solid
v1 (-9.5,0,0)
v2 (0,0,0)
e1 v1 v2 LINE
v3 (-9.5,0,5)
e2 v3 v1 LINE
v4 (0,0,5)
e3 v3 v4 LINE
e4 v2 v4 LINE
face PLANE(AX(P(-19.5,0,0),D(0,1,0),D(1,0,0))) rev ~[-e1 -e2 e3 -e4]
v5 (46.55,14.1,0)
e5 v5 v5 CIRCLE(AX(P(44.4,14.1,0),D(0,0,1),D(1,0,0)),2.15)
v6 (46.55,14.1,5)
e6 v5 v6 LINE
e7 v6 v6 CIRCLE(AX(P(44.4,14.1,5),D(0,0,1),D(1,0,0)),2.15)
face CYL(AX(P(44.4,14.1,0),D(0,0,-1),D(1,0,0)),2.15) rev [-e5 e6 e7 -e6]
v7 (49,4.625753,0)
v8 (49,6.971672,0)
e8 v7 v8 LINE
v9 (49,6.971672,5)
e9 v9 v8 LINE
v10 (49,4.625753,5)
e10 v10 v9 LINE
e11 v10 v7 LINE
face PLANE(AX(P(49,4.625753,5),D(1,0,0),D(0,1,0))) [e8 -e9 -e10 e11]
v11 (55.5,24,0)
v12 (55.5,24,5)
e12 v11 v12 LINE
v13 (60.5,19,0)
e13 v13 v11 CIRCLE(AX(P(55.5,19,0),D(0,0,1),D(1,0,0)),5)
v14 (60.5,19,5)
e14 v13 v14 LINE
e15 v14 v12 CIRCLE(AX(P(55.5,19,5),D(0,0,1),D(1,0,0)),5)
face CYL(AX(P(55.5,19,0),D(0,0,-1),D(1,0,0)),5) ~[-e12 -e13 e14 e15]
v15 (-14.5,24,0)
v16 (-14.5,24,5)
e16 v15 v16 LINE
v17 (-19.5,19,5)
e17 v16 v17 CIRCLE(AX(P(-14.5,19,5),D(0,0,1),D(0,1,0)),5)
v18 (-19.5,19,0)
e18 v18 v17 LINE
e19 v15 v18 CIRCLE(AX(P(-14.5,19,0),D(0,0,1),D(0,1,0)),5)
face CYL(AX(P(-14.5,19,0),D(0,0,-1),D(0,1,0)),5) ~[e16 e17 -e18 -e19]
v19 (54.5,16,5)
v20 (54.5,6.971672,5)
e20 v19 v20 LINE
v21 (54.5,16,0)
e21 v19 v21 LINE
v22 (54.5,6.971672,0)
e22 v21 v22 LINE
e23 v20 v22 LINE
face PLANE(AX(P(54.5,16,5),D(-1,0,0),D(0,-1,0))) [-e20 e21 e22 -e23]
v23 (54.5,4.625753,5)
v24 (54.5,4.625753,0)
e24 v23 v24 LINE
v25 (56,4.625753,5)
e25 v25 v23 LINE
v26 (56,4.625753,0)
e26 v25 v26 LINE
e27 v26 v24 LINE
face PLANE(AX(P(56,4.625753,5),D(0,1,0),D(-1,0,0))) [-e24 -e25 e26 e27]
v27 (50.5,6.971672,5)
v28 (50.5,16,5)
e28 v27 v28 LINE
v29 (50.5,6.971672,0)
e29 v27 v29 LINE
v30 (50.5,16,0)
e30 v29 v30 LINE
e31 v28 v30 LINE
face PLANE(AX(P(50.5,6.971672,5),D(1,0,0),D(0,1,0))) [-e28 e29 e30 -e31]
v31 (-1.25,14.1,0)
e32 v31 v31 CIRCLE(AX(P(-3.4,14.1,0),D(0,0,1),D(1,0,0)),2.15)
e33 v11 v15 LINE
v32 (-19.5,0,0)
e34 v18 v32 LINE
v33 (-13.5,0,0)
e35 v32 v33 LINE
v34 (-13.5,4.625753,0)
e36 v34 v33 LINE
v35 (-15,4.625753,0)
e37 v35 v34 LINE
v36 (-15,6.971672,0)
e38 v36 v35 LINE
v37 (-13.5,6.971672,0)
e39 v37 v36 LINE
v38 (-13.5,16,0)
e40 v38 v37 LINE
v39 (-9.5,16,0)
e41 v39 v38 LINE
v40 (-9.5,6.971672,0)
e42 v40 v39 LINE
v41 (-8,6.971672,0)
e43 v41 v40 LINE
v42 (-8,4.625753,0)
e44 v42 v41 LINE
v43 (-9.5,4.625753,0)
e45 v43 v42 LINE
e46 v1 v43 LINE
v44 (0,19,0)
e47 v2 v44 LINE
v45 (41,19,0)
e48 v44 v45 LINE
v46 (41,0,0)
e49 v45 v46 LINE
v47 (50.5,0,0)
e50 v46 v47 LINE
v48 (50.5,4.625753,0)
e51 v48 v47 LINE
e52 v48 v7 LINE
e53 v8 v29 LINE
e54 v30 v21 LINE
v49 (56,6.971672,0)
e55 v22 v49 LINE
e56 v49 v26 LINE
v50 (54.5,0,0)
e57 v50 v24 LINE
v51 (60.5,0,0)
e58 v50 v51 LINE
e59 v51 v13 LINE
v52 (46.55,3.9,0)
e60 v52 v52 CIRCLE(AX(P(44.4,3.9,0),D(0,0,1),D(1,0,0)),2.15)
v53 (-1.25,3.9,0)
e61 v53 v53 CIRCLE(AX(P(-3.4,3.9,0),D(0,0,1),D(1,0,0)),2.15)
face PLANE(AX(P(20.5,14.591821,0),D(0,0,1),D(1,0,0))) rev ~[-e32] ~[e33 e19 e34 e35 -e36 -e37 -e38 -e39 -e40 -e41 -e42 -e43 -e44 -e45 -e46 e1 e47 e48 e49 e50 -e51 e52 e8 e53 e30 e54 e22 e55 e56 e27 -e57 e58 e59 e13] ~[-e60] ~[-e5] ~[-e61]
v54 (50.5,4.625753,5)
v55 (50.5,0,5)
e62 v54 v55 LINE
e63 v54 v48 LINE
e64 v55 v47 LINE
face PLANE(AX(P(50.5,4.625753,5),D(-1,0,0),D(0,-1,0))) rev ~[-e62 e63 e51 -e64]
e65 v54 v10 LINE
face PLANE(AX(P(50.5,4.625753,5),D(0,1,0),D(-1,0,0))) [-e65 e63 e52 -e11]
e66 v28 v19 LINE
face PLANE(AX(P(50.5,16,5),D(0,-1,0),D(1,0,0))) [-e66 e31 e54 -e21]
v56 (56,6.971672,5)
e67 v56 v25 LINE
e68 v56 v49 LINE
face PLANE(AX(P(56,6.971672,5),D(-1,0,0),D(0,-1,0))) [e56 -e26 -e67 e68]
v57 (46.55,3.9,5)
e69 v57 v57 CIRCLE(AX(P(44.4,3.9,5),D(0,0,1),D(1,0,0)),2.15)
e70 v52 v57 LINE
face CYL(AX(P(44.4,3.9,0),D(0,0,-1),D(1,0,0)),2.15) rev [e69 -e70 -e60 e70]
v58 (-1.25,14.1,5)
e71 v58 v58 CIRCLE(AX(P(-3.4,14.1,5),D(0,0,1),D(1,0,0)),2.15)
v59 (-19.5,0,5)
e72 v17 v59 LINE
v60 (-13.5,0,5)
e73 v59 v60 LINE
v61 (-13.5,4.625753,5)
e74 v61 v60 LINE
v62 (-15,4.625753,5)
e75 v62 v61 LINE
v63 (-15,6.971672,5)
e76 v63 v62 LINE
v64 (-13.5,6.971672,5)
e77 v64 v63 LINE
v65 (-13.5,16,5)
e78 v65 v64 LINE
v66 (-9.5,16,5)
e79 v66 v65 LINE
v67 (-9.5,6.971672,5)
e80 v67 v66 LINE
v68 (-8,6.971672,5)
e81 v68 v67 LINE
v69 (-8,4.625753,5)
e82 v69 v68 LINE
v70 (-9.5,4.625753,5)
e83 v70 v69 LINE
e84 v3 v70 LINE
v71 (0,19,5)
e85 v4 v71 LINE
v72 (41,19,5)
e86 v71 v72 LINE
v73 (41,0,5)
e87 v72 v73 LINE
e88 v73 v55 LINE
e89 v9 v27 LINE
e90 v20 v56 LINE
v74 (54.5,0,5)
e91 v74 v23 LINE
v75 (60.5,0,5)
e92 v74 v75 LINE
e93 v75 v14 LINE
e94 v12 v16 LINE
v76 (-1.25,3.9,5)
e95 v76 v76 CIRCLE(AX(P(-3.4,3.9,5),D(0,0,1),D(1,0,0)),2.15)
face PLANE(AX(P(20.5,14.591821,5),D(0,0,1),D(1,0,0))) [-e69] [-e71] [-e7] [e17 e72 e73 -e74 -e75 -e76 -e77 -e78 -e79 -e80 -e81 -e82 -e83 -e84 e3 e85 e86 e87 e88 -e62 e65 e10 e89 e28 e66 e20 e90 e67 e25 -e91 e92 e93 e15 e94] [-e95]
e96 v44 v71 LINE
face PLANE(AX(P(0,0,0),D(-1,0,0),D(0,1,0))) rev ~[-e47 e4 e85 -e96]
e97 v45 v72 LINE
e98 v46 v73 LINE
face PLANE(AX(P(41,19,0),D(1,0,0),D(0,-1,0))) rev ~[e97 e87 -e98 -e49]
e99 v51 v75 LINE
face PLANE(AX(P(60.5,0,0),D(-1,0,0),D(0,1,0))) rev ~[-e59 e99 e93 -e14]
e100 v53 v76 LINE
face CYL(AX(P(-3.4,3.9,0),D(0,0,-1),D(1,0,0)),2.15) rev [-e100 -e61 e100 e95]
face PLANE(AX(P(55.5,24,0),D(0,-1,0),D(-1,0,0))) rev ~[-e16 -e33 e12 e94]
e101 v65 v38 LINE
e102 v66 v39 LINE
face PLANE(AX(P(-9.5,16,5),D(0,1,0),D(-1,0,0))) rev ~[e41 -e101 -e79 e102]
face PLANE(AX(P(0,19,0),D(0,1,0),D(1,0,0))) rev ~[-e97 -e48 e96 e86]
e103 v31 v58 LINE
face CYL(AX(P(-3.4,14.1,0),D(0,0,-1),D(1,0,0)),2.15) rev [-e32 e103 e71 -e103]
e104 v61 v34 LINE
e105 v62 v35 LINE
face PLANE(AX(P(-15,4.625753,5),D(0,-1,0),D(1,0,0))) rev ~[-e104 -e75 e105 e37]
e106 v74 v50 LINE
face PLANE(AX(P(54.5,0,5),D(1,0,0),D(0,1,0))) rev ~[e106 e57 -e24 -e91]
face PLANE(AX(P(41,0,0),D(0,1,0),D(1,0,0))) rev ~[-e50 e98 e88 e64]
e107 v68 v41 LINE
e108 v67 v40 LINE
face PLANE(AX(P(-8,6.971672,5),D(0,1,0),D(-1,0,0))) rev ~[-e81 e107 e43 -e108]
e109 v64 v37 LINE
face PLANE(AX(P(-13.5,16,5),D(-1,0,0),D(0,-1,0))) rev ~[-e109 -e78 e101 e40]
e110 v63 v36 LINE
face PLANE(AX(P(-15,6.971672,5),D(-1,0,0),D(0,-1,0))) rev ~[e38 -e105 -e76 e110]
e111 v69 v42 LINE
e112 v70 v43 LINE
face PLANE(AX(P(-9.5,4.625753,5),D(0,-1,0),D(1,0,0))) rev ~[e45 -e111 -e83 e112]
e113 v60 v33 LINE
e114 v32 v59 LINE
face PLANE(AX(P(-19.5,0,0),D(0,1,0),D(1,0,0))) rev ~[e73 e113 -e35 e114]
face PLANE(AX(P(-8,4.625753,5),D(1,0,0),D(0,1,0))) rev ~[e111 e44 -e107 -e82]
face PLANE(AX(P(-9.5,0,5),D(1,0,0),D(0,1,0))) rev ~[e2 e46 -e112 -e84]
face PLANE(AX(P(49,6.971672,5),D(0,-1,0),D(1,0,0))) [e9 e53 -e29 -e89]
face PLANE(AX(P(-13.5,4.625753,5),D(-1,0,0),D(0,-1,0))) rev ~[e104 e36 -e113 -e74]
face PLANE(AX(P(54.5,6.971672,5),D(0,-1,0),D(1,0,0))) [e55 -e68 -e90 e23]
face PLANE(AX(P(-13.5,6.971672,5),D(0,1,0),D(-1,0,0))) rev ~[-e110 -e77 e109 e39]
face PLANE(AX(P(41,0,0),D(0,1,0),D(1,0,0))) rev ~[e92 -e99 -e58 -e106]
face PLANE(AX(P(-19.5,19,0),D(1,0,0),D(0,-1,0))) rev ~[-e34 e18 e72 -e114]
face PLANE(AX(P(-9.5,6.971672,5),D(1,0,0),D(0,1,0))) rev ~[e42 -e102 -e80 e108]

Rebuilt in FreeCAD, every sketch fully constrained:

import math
import FreeCAD as App
import Part
import Sketcher
from FreeCAD import Vector


def add_polygon(sketch, points):
    """Adds a closed chain of lines whose ends are joined by coincident constraints."""
    first, n = sketch.GeometryCount, len(points)
    for a, b in zip(points, points[1:] + points[:1]):
        sketch.addGeometry(Part.LineSegment(App.Vector(*a, 0), App.Vector(*b, 0)), False)
    for i in range(n):
        sketch.addConstraint(Sketcher.Constraint("Coincident", first + i, 2, first + (i + 1) % n, 1))

doc = App.newDocument("Part")
params = doc.addObject("Spreadsheet::Sheet", "Params")
for row, (alias, value) in enumerate([
    ("sketch1_radius", "5 mm"),
    ("sketch1_diameter", "4.3 mm"),
    ("sketch1_width", "41 mm"),
    ("sketch1_width2", "70 mm"),
    ("sketch1_height", "19 mm"),
    ("pad1_length", "5 mm"),
    ("sketch2_width", "4 mm"),
    ("sketch2_width2", "1.5 mm"),
    ("pocket1_length", "30 mm"),
], start=1):
    params.set(f"A{row}", alias)
    params.set(f"B{row}", "=" + value)
    params.setAlias(f"B{row}", alias)

body = doc.addObject("PartDesign::Body", "Body")

sketch1 = body.newObject("Sketcher::SketchObject", "Sketch")
sketch1.AttachmentSupport = (doc.getObject("XY_Plane"), [""])
sketch1.MapMode = "FlatFace"
sketch1.addGeometry(Part.LineSegment(Vector(-19.5, 0, 0), Vector(0, 0, 0)), False)
sketch1.addGeometry(Part.LineSegment(Vector(0, 0, 0), Vector(0, 19, 0)), False)
sketch1.addGeometry(Part.LineSegment(Vector(0, 19, 0), Vector(41, 19, 0)), False)
sketch1.addGeometry(Part.LineSegment(Vector(41, 19, 0), Vector(41, 0, 0)), False)
sketch1.addGeometry(Part.LineSegment(Vector(41, 0, 0), Vector(60.5, 0, 0)), False)
sketch1.addGeometry(Part.LineSegment(Vector(60.5, 0, 0), Vector(60.5, 19, 0)), False)
sketch1.addGeometry(Part.ArcOfCircle(Part.Circle(Vector(55.5, 19, 0), Vector(0, 0, 1), 5), math.radians(0), math.radians(90)), False)
sketch1.addGeometry(Part.LineSegment(Vector(55.5, 24, 0), Vector(-14.5, 24, 0)), False)
sketch1.addGeometry(Part.ArcOfCircle(Part.Circle(Vector(-14.5, 19, 0), Vector(0, 0, 1), 5), math.radians(90), math.radians(180)), False)
sketch1.addGeometry(Part.LineSegment(Vector(-19.5, 19, 0), Vector(-19.5, 0, 0)), False)
sketch1.addGeometry(Part.Circle(Vector(-3.4, 3.9, 0), Vector(0, 0, 1), 2.1), False)
sketch1.addGeometry(Part.Circle(Vector(44.4, 3.9, 0), Vector(0, 0, 1), 2.1), False)
sketch1.addGeometry(Part.Circle(Vector(-3.4, 14.1, 0), Vector(0, 0, 1), 2.1), False)
sketch1.addGeometry(Part.Circle(Vector(44.4, 14.1, 0), Vector(0, 0, 1), 2.1), False)
sketch1.addConstraint(Sketcher.Constraint("Coincident", 0, 2, 1, 1))
sketch1.addConstraint(Sketcher.Constraint("Coincident", 1, 2, 2, 1))
sketch1.addConstraint(Sketcher.Constraint("Coincident", 2, 2, 3, 1))
sketch1.addConstraint(Sketcher.Constraint("Coincident", 3, 2, 4, 1))
sketch1.addConstraint(Sketcher.Constraint("Coincident", 4, 2, 5, 1))
sketch1.addConstraint(Sketcher.Constraint("Tangent", 5, 2, 6, 1))
sketch1.addConstraint(Sketcher.Constraint("Tangent", 6, 2, 7, 1))
sketch1.addConstraint(Sketcher.Constraint("Tangent", 7, 2, 8, 1))
sketch1.addConstraint(Sketcher.Constraint("Tangent", 8, 2, 9, 1))
sketch1.addConstraint(Sketcher.Constraint("Coincident", 9, 2, 0, 1))
sketch1.addConstraint(Sketcher.Constraint("Horizontal", 0))
sketch1.addConstraint(Sketcher.Constraint("Vertical", 1))
sketch1.addConstraint(Sketcher.Constraint("Horizontal", 2))
sketch1.addConstraint(Sketcher.Constraint("Vertical", 3))
sketch1.addConstraint(Sketcher.Constraint("Horizontal", 4))
sketch1.addConstraint(Sketcher.Constraint("Vertical", 5))
sketch1.addConstraint(Sketcher.Constraint("Horizontal", 7))
sketch1.addConstraint(Sketcher.Constraint("Vertical", 9))
sketch1.addConstraint(Sketcher.Constraint("Coincident", 0, 2, -1, 1))
sketch1.addConstraint(Sketcher.Constraint("Equal", 6, 8))
sketch1.addConstraint(Sketcher.Constraint("Equal", 10, 11))
sketch1.addConstraint(Sketcher.Constraint("Equal", 11, 12))
sketch1.addConstraint(Sketcher.Constraint("Equal", 12, 13))
sketch1.addConstraint(Sketcher.Constraint("PointOnObject", 3, 2, -1))
sketch1.addConstraint(Sketcher.Constraint("Horizontal", 10, 3, 11, 3))
sketch1.addConstraint(Sketcher.Constraint("Horizontal", 12, 3, 13, 3))
sketch1.addConstraint(Sketcher.Constraint("Horizontal", 8, 3, 1, 2))
sketch1.addConstraint(Sketcher.Constraint("Vertical", 10, 3, 12, 3))
sketch1.addConstraint(Sketcher.Constraint("Vertical", 11, 3, 13, 3))
sketch1.addConstraint(Sketcher.Constraint("Equal", 0, 4))
sketch1.addConstraint(Sketcher.Constraint("Radius", 6, 5.0))
sketch1.addConstraint(Sketcher.Constraint("Diameter", 10, 4.3))
sketch1.addConstraint(Sketcher.Constraint("DistanceX", 2, 1, 2, 2, 41.0))
sketch1.addConstraint(Sketcher.Constraint("DistanceX", 7, 2, 7, 1, 70.0))
sketch1.addConstraint(Sketcher.Constraint("DistanceY", 1, 1, 1, 2, 19.0))
sketch1.addConstraint(Sketcher.Constraint("DistanceX", 10, 3, -1, 1, 3.4))
sketch1.addConstraint(Sketcher.Constraint("DistanceY", -1, 1, 10, 3, 3.9))
sketch1.addConstraint(Sketcher.Constraint("DistanceX", -1, 1, 11, 3, 44.4))
sketch1.addConstraint(Sketcher.Constraint("DistanceY", -1, 1, 12, 3, 14.1))
sketch1.setExpression("Constraints[30]", "Params.sketch1_radius")
sketch1.setExpression("Constraints[31]", "Params.sketch1_diameter")
sketch1.setExpression("Constraints[32]", "Params.sketch1_width")
sketch1.setExpression("Constraints[33]", "Params.sketch1_width2")
sketch1.setExpression("Constraints[34]", "Params.sketch1_height")
pad1 = body.newObject("PartDesign::Pad", "Pad")
pad1.Profile = sketch1
pad1.setExpression("Length", "Params.pad1_length")

sketch2 = body.newObject("Sketcher::SketchObject", "Sketch001")
sketch2.AttachmentSupport = (doc.getObject("XY_Plane"), [""])
sketch2.MapMode = "FlatFace"
sketch2.AttachmentOffset = App.Placement(Vector(0, 0, 5), App.Rotation())
add_polygon(sketch2, [(-9.5, 4.6), (-8, 4.6), (-8, 7), (-9.5, 7), (-9.5, 16), (-13.5, 16), (-13.5, 7), (-15, 7), (-15, 4.6), (-13.5, 4.6), (-13.5, 0), (-9.5, 0)])
add_polygon(sketch2, [(50.5, 0), (54.5, 0), (54.5, 4.6), (56, 4.6), (56, 7), (54.5, 7), (54.5, 16), (50.5, 16), (50.5, 7), (49, 7), (49, 4.6), (50.5, 4.6)])
sketch2.addConstraint(Sketcher.Constraint("Horizontal", 0))
sketch2.addConstraint(Sketcher.Constraint("Vertical", 1))
sketch2.addConstraint(Sketcher.Constraint("Horizontal", 2))
sketch2.addConstraint(Sketcher.Constraint("Vertical", 3))
sketch2.addConstraint(Sketcher.Constraint("Horizontal", 4))
sketch2.addConstraint(Sketcher.Constraint("Vertical", 5))
sketch2.addConstraint(Sketcher.Constraint("Horizontal", 6))
sketch2.addConstraint(Sketcher.Constraint("Vertical", 7))
sketch2.addConstraint(Sketcher.Constraint("Horizontal", 8))
sketch2.addConstraint(Sketcher.Constraint("Vertical", 9))
sketch2.addConstraint(Sketcher.Constraint("Horizontal", 10))
sketch2.addConstraint(Sketcher.Constraint("Vertical", 11))
sketch2.addConstraint(Sketcher.Constraint("Horizontal", 12))
sketch2.addConstraint(Sketcher.Constraint("Vertical", 13))
sketch2.addConstraint(Sketcher.Constraint("Horizontal", 14))
sketch2.addConstraint(Sketcher.Constraint("Vertical", 15))
sketch2.addConstraint(Sketcher.Constraint("Horizontal", 16))
sketch2.addConstraint(Sketcher.Constraint("Vertical", 17))
sketch2.addConstraint(Sketcher.Constraint("Horizontal", 18))
sketch2.addConstraint(Sketcher.Constraint("Vertical", 19))
sketch2.addConstraint(Sketcher.Constraint("Horizontal", 20))
sketch2.addConstraint(Sketcher.Constraint("Vertical", 21))
sketch2.addConstraint(Sketcher.Constraint("Horizontal", 22))
sketch2.addConstraint(Sketcher.Constraint("Vertical", 23))
sketch2.addConstraint(Sketcher.Constraint("PointOnObject", 9, 2, -1))
sketch2.addConstraint(Sketcher.Constraint("PointOnObject", 12, 2, -1))
sketch2.addConstraint(Sketcher.Constraint("Horizontal", 2, 2, 5, 2))
sketch2.addConstraint(Sketcher.Constraint("Horizontal", 0, 2, 7, 2))
sketch2.addConstraint(Sketcher.Constraint("Horizontal", 11, 2, 13, 2))
sketch2.addConstraint(Sketcher.Constraint("Horizontal", 6, 2, 15, 2))
sketch2.addConstraint(Sketcher.Constraint("Horizontal", 4, 2, 17, 2))
sketch2.addConstraint(Sketcher.Constraint("Horizontal", 16, 2, 19, 2))
sketch2.addConstraint(Sketcher.Constraint("Horizontal", 14, 2, 21, 2))
sketch2.addConstraint(Sketcher.Constraint("Vertical", 5, 2, 8, 2))
sketch2.addConstraint(Sketcher.Constraint("Vertical", 3, 2, 10, 2))
sketch2.addConstraint(Sketcher.Constraint("Vertical", 13, 2, 16, 2))
sketch2.addConstraint(Sketcher.Constraint("Vertical", 19, 2, 22, 2))
sketch2.addConstraint(Sketcher.Constraint("Equal", 2, 6))
sketch2.addConstraint(Sketcher.Constraint("Equal", 10, 12))
sketch2.addConstraint(Sketcher.Constraint("Equal", 8, 14))
sketch2.addConstraint(Sketcher.Constraint("Equal", 16, 20))
sketch2.addConstraint(Sketcher.Constraint("DistanceX", 4, 2, 4, 1, 4.0))
sketch2.addConstraint(Sketcher.Constraint("DistanceX", 0, 1, 0, 2, 1.5))
sketch2.addConstraint(Sketcher.Constraint("DistanceX", 0, 2, -1, 1, 8.0))
sketch2.addConstraint(Sketcher.Constraint("DistanceY", -1, 1, 3, 2, 16.0))
sketch2.addConstraint(Sketcher.Constraint("DistanceX", -1, 1, 14, 2, 56.0))
sketch2.addConstraint(Sketcher.Constraint("DistanceY", 1, 1, 1, 2, 2.345919))
sketch2.addConstraint(Sketcher.Constraint("DistanceY", 3, 1, 3, 2, 9.028328))
sketch2.setExpression("Constraints[65]", "Params.sketch2_width")
sketch2.setExpression("Constraints[66]", "Params.sketch2_width2")
pocket1 = body.newObject("PartDesign::Pocket", "Pocket")
pocket1.Profile = sketch2
pocket1.setExpression("Length", "Params.pocket1_length")

doc.recompute()
